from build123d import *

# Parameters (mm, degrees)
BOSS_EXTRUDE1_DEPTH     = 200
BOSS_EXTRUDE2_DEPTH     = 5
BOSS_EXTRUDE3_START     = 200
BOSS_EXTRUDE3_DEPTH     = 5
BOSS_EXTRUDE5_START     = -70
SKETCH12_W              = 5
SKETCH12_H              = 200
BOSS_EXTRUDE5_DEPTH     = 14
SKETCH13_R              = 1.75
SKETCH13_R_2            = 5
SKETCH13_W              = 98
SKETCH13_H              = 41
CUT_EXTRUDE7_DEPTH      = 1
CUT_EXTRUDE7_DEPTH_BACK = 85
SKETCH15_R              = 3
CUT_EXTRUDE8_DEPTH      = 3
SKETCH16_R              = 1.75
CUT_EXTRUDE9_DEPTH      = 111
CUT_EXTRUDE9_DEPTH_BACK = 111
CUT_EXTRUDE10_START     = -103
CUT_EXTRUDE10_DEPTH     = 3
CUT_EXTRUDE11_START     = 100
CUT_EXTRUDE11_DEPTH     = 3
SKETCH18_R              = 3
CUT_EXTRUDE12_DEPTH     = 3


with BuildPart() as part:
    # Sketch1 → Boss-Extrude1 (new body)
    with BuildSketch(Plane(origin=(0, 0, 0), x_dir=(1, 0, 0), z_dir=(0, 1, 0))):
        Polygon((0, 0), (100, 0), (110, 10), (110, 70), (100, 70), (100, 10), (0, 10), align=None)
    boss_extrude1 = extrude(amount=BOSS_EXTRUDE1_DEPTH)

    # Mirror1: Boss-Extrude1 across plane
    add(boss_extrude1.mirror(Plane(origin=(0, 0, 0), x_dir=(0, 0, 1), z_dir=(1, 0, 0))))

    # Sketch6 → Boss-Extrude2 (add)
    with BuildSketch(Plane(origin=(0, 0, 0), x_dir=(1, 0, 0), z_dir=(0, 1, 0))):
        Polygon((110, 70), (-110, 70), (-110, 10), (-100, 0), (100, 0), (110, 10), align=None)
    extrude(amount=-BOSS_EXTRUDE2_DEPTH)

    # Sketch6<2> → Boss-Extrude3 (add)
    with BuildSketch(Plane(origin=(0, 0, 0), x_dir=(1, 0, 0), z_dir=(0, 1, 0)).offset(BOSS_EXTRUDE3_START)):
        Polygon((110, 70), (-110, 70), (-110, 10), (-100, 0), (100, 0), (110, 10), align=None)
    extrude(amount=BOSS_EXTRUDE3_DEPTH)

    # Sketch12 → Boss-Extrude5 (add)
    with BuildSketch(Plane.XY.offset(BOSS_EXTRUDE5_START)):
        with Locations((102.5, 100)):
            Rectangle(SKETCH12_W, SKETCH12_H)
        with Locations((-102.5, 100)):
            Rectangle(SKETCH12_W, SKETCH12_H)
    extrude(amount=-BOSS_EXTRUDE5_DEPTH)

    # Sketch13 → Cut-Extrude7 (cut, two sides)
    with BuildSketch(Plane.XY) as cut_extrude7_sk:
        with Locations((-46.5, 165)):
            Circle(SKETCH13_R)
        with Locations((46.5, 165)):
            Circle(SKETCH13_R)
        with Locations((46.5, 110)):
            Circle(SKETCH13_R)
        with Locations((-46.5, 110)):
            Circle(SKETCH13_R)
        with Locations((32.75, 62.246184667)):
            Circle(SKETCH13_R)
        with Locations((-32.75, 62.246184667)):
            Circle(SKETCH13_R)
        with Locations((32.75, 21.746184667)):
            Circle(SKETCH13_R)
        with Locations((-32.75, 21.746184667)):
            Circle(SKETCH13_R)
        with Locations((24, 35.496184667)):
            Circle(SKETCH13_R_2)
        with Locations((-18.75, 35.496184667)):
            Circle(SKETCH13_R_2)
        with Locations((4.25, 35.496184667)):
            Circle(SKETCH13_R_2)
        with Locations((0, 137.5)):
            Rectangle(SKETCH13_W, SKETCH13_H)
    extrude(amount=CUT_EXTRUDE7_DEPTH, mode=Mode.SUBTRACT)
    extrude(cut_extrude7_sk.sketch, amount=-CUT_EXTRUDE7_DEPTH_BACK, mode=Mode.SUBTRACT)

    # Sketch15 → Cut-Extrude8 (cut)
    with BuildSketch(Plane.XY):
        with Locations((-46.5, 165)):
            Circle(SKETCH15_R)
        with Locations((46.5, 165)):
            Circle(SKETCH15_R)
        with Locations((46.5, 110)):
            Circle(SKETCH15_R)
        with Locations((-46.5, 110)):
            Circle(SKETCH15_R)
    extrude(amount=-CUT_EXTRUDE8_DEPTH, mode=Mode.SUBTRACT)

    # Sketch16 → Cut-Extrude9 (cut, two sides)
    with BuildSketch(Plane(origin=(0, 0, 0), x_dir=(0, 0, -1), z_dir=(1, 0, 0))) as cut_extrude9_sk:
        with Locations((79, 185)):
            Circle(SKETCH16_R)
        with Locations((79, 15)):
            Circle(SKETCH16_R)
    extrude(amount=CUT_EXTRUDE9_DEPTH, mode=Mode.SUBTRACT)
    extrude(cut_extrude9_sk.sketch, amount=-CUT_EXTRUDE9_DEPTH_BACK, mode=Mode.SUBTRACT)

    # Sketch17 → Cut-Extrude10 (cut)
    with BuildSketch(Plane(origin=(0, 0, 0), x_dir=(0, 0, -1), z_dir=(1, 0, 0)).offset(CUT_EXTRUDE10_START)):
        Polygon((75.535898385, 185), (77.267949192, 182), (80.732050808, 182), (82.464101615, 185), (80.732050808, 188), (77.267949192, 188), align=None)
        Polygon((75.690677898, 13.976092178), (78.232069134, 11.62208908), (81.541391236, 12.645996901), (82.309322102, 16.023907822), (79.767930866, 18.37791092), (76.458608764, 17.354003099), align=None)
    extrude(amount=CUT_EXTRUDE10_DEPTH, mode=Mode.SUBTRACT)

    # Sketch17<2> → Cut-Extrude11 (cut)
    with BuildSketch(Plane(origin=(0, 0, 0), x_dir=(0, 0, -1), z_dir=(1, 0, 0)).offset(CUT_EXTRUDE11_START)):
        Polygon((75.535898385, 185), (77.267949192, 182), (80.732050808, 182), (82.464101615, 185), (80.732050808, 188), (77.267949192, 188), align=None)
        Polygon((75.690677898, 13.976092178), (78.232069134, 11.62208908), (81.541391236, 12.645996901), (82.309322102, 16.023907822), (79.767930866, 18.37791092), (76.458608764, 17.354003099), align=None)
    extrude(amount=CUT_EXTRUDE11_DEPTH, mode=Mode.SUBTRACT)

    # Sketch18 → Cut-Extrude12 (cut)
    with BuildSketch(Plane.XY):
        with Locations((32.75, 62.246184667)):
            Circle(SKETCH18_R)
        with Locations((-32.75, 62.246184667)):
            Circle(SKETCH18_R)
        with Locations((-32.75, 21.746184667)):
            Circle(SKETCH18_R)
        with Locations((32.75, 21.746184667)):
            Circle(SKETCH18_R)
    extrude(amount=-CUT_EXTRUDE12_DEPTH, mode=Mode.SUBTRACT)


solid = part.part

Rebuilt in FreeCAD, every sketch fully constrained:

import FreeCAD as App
import Part
import Sketcher

V = App.Vector
Q = App.Units.Quantity

doc = App.newDocument("Part")
body = doc.addObject("PartDesign::Body", "Body")

# Sketch on XZ plane
sketch1 = body.newObject("Sketcher::SketchObject", "Sketch")
sketch1.AttachmentSupport = (doc.getObject("XZ_Plane"), [""])
sketch1.MapMode = "FlatFace"
sketch1.addGeometry([
    Part.LineSegment(V(0, 0, 0), V(100, 0, 0)),  # 0
    Part.LineSegment(V(100, 0, 0), V(110, -10, 0)),  # 1
    Part.LineSegment(V(110, -10, 0), V(110, -70, 0)),  # 2
    Part.LineSegment(V(110, -70, 0), V(100, -70, 0)),  # 3
    Part.LineSegment(V(100, -70, 0), V(100, -10, 0)),  # 4
    Part.LineSegment(V(100, -10, 0), V(0, -10, 0)),  # 5
    Part.LineSegment(V(0, -10, 0), V(0, 0, 0)),  # 6
], False)
sketch1.addConstraint([
    Sketcher.Constraint("Coincident", 0, 2, 1, 1),
    Sketcher.Constraint("Coincident", 1, 2, 2, 1),
    Sketcher.Constraint("Coincident", 2, 2, 3, 1),
    Sketcher.Constraint("Coincident", 3, 2, 4, 1),
    Sketcher.Constraint("Coincident", 4, 2, 5, 1),
    Sketcher.Constraint("Coincident", 5, 2, 6, 1),
    Sketcher.Constraint("Coincident", 6, 2, 0, 1),
    Sketcher.Constraint("Horizontal", 0),
    Sketcher.Constraint("Vertical", 2),
    Sketcher.Constraint("Horizontal", 3),
    Sketcher.Constraint("Vertical", 4),
    Sketcher.Constraint("Horizontal", 5),
    Sketcher.Constraint("Vertical", 6),
    Sketcher.Constraint("Coincident", 6, 2, -1, 1),
    Sketcher.Constraint("Horizontal", 1, 2, 4, 2),
    Sketcher.Constraint("Vertical", 0, 2, 3, 2),
    Sketcher.Constraint("Equal", 3, 6),
    Sketcher.Constraint("DistanceX", 0, 1, 0, 2, Q("100 mm")),
    Sketcher.Constraint("DistanceX", 3, 2, 3, 1, Q("10 mm")),
    Sketcher.Constraint("DistanceY", 2, 2, 2, 1, Q("60 mm")),
])
pad1 = body.newObject("PartDesign::Pad", "Pad")
pad1.Profile = sketch1
pad1.Length = 200
pad1.Reversed = True
doc.recompute()

mirrored = body.newObject("PartDesign::Mirrored", "Mirrored")
mirrored.Originals = [pad1]
mirrored.MirrorPlane = (doc.getObject("YZ_Plane"), [""])
body.Tip = mirrored

# Sketch on XZ plane
sketch2 = body.newObject("Sketcher::SketchObject", "Sketch001")
sketch2.AttachmentSupport = (doc.getObject("XZ_Plane"), [""])
sketch2.MapMode = "FlatFace"
sketch2.addGeometry([
    Part.LineSegment(V(110, -70, 0), V(-110, -70, 0)),  # 0
    Part.LineSegment(V(-110, -70, 0), V(-110, -10, 0)),  # 1
    Part.LineSegment(V(-110, -10, 0), V(-100, 0, 0)),  # 2
    Part.LineSegment(V(-100, 0, 0), V(100, 0, 0)),  # 3
    Part.LineSegment(V(100, 0, 0), V(110, -10, 0)),  # 4
    Part.LineSegment(V(110, -10, 0), V(110, -70, 0)),  # 5
], False)
sketch2.addConstraint([
    Sketcher.Constraint("Coincident", 0, 2, 1, 1),
    Sketcher.Constraint("Coincident", 1, 2, 2, 1),
    Sketcher.Constraint("Coincident", 2, 2, 3, 1),
    Sketcher.Constraint("Coincident", 3, 2, 4, 1),
    Sketcher.Constraint("Coincident", 4, 2, 5, 1),
    Sketcher.Constraint("Coincident", 5, 2, 0, 1),
    Sketcher.Constraint("Horizontal", 0),
    Sketcher.Constraint("Vertical", 1),
    Sketcher.Constraint("Horizontal", 3),
    Sketcher.Constraint("Vertical", 5),
    Sketcher.Constraint("Symmetric", 2, 2, 3, 2, -1, 1),
    Sketcher.Constraint("Symmetric", 1, 2, 4, 2, -2),
    Sketcher.Constraint("Perpendicular", 2, 4),
    Sketcher.Constraint("DistanceX", 0, 2, 0, 1, Q("220 mm")),
    Sketcher.Constraint("DistanceX", 3, 1, 3, 2, Q("200 mm")),
    Sketcher.Constraint("DistanceY", 1, 1, 1, 2, Q("60 mm")),
])
pad2 = body.newObject("PartDesign::Pad", "Pad001")
pad2.Profile = sketch2
pad2.Length = 5

# Sketch on XZ plane
sketch3 = body.newObject("Sketcher::SketchObject", "Sketch002")
sketch3.AttachmentSupport = (doc.getObject("XZ_Plane"), [""])
sketch3.MapMode = "FlatFace"
sketch3.AttachmentOffset = App.Placement(V(0, 0, -200), App.Rotation())
sketch3.addGeometry([
    Part.LineSegment(V(110, -70, 0), V(-110, -70, 0)),  # 0
    Part.LineSegment(V(-110, -70, 0), V(-110, -10, 0)),  # 1
    Part.LineSegment(V(-110, -10, 0), V(-100, 0, 0)),  # 2
    Part.LineSegment(V(-100, 0, 0), V(100, 0, 0)),  # 3
    Part.LineSegment(V(100, 0, 0), V(110, -10, 0)),  # 4
    Part.LineSegment(V(110, -10, 0), V(110, -70, 0)),  # 5
], False)
sketch3.addConstraint([
    Sketcher.Constraint("Coincident", 0, 2, 1, 1),
    Sketcher.Constraint("Coincident", 1, 2, 2, 1),
    Sketcher.Constraint("Coincident", 2, 2, 3, 1),
    Sketcher.Constraint("Coincident", 3, 2, 4, 1),
    Sketcher.Constraint("Coincident", 4, 2, 5, 1),
    Sketcher.Constraint("Coincident", 5, 2, 0, 1),
    Sketcher.Constraint("Horizontal", 0),
    Sketcher.Constraint("Vertical", 1),
    Sketcher.Constraint("Horizontal", 3),
    Sketcher.Constraint("Vertical", 5),
    Sketcher.Constraint("Symmetric", 2, 2, 3, 2, -1, 1),
    Sketcher.Constraint("Symmetric", 1, 2, 4, 2, -2),
    Sketcher.Constraint("Perpendicular", 2, 4),
    Sketcher.Constraint("DistanceX", 0, 2, 0, 1, Q("220 mm")),
    Sketcher.Constraint("DistanceX", 3, 1, 3, 2, Q("200 mm")),
    Sketcher.Constraint("DistanceY", 1, 1, 1, 2, Q("60 mm")),
])
pad3 = body.newObject("PartDesign::Pad", "Pad002")
pad3.Profile = sketch3
pad3.Length = 5
pad3.Reversed = True

# Sketch on XY plane
sketch4 = body.newObject("Sketcher::SketchObject", "Sketch003")
sketch4.AttachmentSupport = (doc.getObject("XY_Plane"), [""])
sketch4.MapMode = "FlatFace"
sketch4.AttachmentOffset = App.Placement(V(0, 0, -70), App.Rotation())
sketch4.addGeometry([
    Part.LineSegment(V(100, 200, 0), V(100, 0, 0)),  # 0
    Part.LineSegment(V(100, 0, 0), V(105, 0, 0)),  # 1
    Part.LineSegment(V(105, 0, 0), V(105, 200, 0)),  # 2
    Part.LineSegment(V(105, 200, 0), V(100, 200, 0)),  # 3
    Part.LineSegment(V(-105, 200, 0), V(-105, 0, 0)),  # 4
    Part.LineSegment(V(-105, 0, 0), V(-100, 0, 0)),  # 5
    Part.LineSegment(V(-100, 0, 0), V(-100, 200, 0)),  # 6
    Part.LineSegment(V(-100, 200, 0), V(-105, 200, 0)),  # 7
], False)
sketch4.addConstraint([
    Sketcher.Constraint("Coincident", 0, 2, 1, 1),
    Sketcher.Constraint("Coincident", 1, 2, 2, 1),
    Sketcher.Constraint("Coincident", 2, 2, 3, 1),
    Sketcher.Constraint("Coincident", 3, 2, 0, 1),
    Sketcher.Constraint("Coincident", 4, 2, 5, 1),
    Sketcher.Constraint("Coincident", 5, 2, 6, 1),
    Sketcher.Constraint("Coincident", 6, 2, 7, 1),
    Sketcher.Constraint("Coincident", 7, 2, 4, 1),
    Sketcher.Constraint("Vertical", 0),
    Sketcher.Constraint("Horizontal", 1),
    Sketcher.Constraint("Vertical", 2),
    Sketcher.Constraint("Horizontal", 3),
    Sketcher.Constraint("Vertical", 4),
    Sketcher.Constraint("Horizontal", 5),
    Sketcher.Constraint("Vertical", 6),
    Sketcher.Constraint("Horizontal", 7),
    Sketcher.Constraint("Symmetric", 1, 2, 4, 2, -1, 1),
    Sketcher.Constraint("Symmetric", 0, 2, 5, 2, -2),
    Sketcher.Constraint("Horizontal", 3, 2, 6, 2),
    Sketcher.Constraint("DistanceX", 1, 1, 1, 2, Q("5 mm")),
    Sketcher.Constraint("DistanceY", 0, 2, 0, 1, Q("200 mm")),
    Sketcher.Constraint("DistanceX", -1, 1, 0, 2, Q("100 mm")),
])
pad4 = body.newObject("PartDesign::Pad", "Pad003")
pad4.Profile = sketch4
pad4.Length = 14
pad4.Reversed = True

# Sketch on XY plane
sketch5 = body.newObject("Sketcher::SketchObject", "Sketch004")
sketch5.AttachmentSupport = (doc.getObject("XY_Plane"), [""])
sketch5.MapMode = "FlatFace"
sketch5.addGeometry([
    Part.Circle(V(-46.5, 165, 0), V(0, 0, 1), 1.8),  # 0
    Part.Circle(V(46.5, 165, 0), V(0, 0, 1), 1.8),  # 1
    Part.Circle(V(46.5, 110, 0), V(0, 0, 1), 1.8),  # 2
    Part.Circle(V(-46.5, 110, 0), V(0, 0, 1), 1.8),  # 3
    Part.Circle(V(32.8, 62.2, 0), V(0, 0, 1), 1.8),  # 4
    Part.Circle(V(-32.8, 62.2, 0), V(0, 0, 1), 1.8),  # 5
    Part.Circle(V(32.8, 21.7, 0), V(0, 0, 1), 1.8),  # 6
    Part.Circle(V(-32.8, 21.7, 0), V(0, 0, 1), 1.8),  # 7
    Part.Circle(V(24, 35.5, 0), V(0, 0, 1), 5),  # 8
    Part.Circle(V(-18.8, 35.5, 0), V(0, 0, 1), 5),  # 9
    Part.Circle(V(4.2, 35.5, 0), V(0, 0, 1), 5),  # 10
    Part.LineSegment(V(-49, 158, 0), V(-49, 117, 0)),  # 11
    Part.LineSegment(V(-49, 117, 0), V(49, 117, 0)),  # 12
    Part.LineSegment(V(49, 117, 0), V(49, 158, 0)),  # 13
    Part.LineSegment(V(49, 158, 0), V(-49, 158, 0)),  # 14
], False)
sketch5.addConstraint([
    Sketcher.Constraint("Coincident", 11, 2, 12, 1),
    Sketcher.Constraint("Coincident", 12, 2, 13, 1),
    Sketcher.Constraint("Coincident", 13, 2, 14, 1),
    Sketcher.Constraint("Coincident", 14, 2, 11, 1),
    Sketcher.Constraint("Vertical", 11),
    Sketcher.Constraint("Horizontal", 12),
    Sketcher.Constraint("Vertical", 13),
    Sketcher.Constraint("Horizontal", 14),
    Sketcher.Constraint("Equal", 0, 1),
    Sketcher.Constraint("Equal", 1, 2),
    Sketcher.Constraint("Equal", 2, 3),
    Sketcher.Constraint("Equal", 3, 4),
    Sketcher.Constraint("Equal", 4, 5),
    Sketcher.Constraint("Equal", 5, 6),
    Sketcher.Constraint("Equal", 6, 7),
    Sketcher.Constraint("Equal", 8, 9),
    Sketcher.Constraint("Equal", 9, 10),
    Sketcher.Constraint("Symmetric", 0, 3, 1, 3, -2),
    Sketcher.Constraint("Symmetric", 2, 3, 3, 3, -2),
    Sketcher.Constraint("Symmetric", 4, 3, 5, 3, -2),
    Sketcher.Constraint("Symmetric", 6, 3, 7, 3, -2),
    Sketcher.Constraint("Horizontal", 8, 3, 9, 3),
    Sketcher.Constraint("Horizontal", 9, 3, 10, 3),
    Sketcher.Constraint("Vertical", 1, 3, 2, 3),
    Sketcher.Constraint("Vertical", 4, 3, 6, 3),
    Sketcher.Constraint("Diameter", 8, Q("10 mm")),
    Sketcher.Constraint("Diameter", 0, Q("3.5 mm")),
    Sketcher.Constraint("DistanceX", 12, 1, 12, 2, Q("98 mm")),
    Sketcher.Constraint("DistanceY", 11, 2, 11, 1, Q("41 mm")),
    Sketcher.Constraint("DistanceY", -1, 1, 0, 3, Q("165 mm")),
    Sketcher.Constraint("DistanceY", -1, 1, 2, 3, Q("110 mm")),
    Sketcher.Constraint("DistanceX", -1, 1, 8, 3, Q("24 mm")),
    Sketcher.Constraint("DistanceX", 11, 2, -1, 1, Q("49 mm")),
    Sketcher.Constraint("DistanceY", -1, 1, 11, 2, Q("117 mm")),
    Sketcher.Constraint("DistanceX", 0, 3, 1, 3, Q("93 mm")),
    Sketcher.Constraint("DistanceX", 7, 3, 9, 3, Q("14 mm")),
    Sketcher.Constraint("DistanceX", 9, 3, 10, 3, Q("23 mm")),
    Sketcher.Constraint("DistanceX", 5, 3, 4, 3, Q("65.5 mm")),
    Sketcher.Constraint("DistanceY", 6, 3, 4, 3, Q("40.5 mm")),
    Sketcher.Constraint("DistanceY", 6, 3, 8, 3, Q("13.75 mm")),
    Sketcher.Constraint("DistanceY", -1, 1, 4, 3, Q("62.246185 mm")),
])
pocket1 = body.newObject("PartDesign::Pocket", "Pocket")
pocket1.Profile = sketch5
pocket1.Type = "ThroughAll"
pocket1.Midplane = True

# Sketch on XY plane
sketch6 = body.newObject("Sketcher::SketchObject", "Sketch005")
sketch6.AttachmentSupport = (doc.getObject("XY_Plane"), [""])
sketch6.MapMode = "FlatFace"
sketch6.addGeometry([
    Part.Circle(V(-46.5, 165, 0), V(0, 0, 1), 3),
    Part.Circle(V(46.5, 165, 0), V(0, 0, 1), 3),
    Part.Circle(V(46.5, 110, 0), V(0, 0, 1), 3),
    Part.Circle(V(-46.5, 110, 0), V(0, 0, 1), 3),
], False)
sketch6.addConstraint([
    Sketcher.Constraint("Equal", 0, 1),
    Sketcher.Constraint("Equal", 1, 2),
    Sketcher.Constraint("Equal", 2, 3),
    Sketcher.Constraint("Symmetric", 0, 3, 1, 3, -2),
    Sketcher.Constraint("Symmetric", 2, 3, 3, 3, -2),
    Sketcher.Constraint("Vertical", 1, 3, 2, 3),
    Sketcher.Constraint("Diameter", 0, Q("6 mm")),
    Sketcher.Constraint("DistanceY", -1, 1, 0, 3, Q("165 mm")),
    Sketcher.Constraint("DistanceY", -1, 1, 2, 3, Q("110 mm")),
    Sketcher.Constraint("DistanceX", 0, 3, 1, 3, Q("93 mm")),
])
pocket2 = body.newObject("PartDesign::Pocket", "Pocket001")
pocket2.Profile = sketch6
pocket2.Length = 3

# Sketch on YZ plane
sketch7 = body.newObject("Sketcher::SketchObject", "Sketch006")
sketch7.AttachmentSupport = (doc.getObject("YZ_Plane"), [""])
sketch7.MapMode = "FlatFace"
sketch7.addGeometry([
    Part.Circle(V(185, -79, 0), V(0, 0, 1), 1.8),
    Part.Circle(V(15, -79, 0), V(0, 0, 1), 1.8),
], False)
sketch7.addConstraint([
    Sketcher.Constraint("Equal", 0, 1),
    Sketcher.Constraint("Horizontal", 0, 3, 1, 3),
    Sketcher.Constraint("Diameter", 0, Q("3.5 mm")),
    Sketcher.Constraint("DistanceX", -1, 1, 0, 3, Q("185 mm")),
    Sketcher.Constraint("DistanceY", 0, 3, -1, 1, Q("79 mm")),
    Sketcher.Constraint("DistanceX", -1, 1, 1, 3, Q("15 mm")),
])
pocket3 = body.newObject("PartDesign::Pocket", "Pocket002")
pocket3.Profile = sketch7
pocket3.Type = "ThroughAll"
pocket3.Midplane = True

# Sketch on YZ plane
sketch8 = body.newObject("Sketcher::SketchObject", "Sketch007")
sketch8.AttachmentSupport = (doc.getObject("YZ_Plane"), [""])
sketch8.MapMode = "FlatFace"
sketch8.AttachmentOffset = App.Placement(V(0, 0, -103), App.Rotation())
sketch8.addGeometry([
    Part.LineSegment(V(185, -75.5, 0), V(182, -77.3, 0)),  # 0
    Part.LineSegment(V(182, -77.3, 0), V(182, -80.7, 0)),  # 1
    Part.LineSegment(V(182, -80.7, 0), V(185, -82.5, 0)),  # 2
    Part.LineSegment(V(185, -82.5, 0), V(188, -80.7, 0)),  # 3
    Part.LineSegment(V(188, -80.7, 0), V(188, -77.3, 0)),  # 4
    Part.LineSegment(V(188, -77.3, 0), V(185, -75.5, 0)),  # 5
    Part.LineSegment(V(14, -75.7, 0), V(11.6, -78.2, 0)),  # 6
    Part.LineSegment(V(11.6, -78.2, 0), V(12.6, -81.5, 0)),  # 7
    Part.LineSegment(V(12.6, -81.5, 0), V(16, -82.3, 0)),  # 8
    Part.LineSegment(V(16, -82.3, 0), V(18.4, -79.8, 0)),  # 9
    Part.LineSegment(V(18.4, -79.8, 0), V(17.4, -76.5, 0)),  # 10
    Part.LineSegment(V(17.4, -76.5, 0), V(14, -75.7, 0)),  # 11
], False)
sketch8.addConstraint([
    Sketcher.Constraint("Coincident", 0, 2, 1, 1),
    Sketcher.Constraint("Coincident", 1, 2, 2, 1),
    Sketcher.Constraint("Coincident", 2, 2, 3, 1),
    Sketcher.Constraint("Coincident", 3, 2, 4, 1),
    Sketcher.Constraint("Coincident", 4, 2, 5, 1),
    Sketcher.Constraint("Coincident", 5, 2, 0, 1),
    Sketcher.Constraint("Coincident", 6, 2, 7, 1),
    Sketcher.Constraint("Coincident", 7, 2, 8, 1),
    Sketcher.Constraint("Coincident", 8, 2, 9, 1),
    Sketcher.Constraint("Coincident", 9, 2, 10, 1),
    Sketcher.Constraint("Coincident", 10, 2, 11, 1),
    Sketcher.Constraint("Coincident", 11, 2, 6, 1),
    Sketcher.Constraint("Vertical", 1),
    Sketcher.Constraint("Vertical", 4),
    Sketcher.Constraint("Parallel", 0, 3),
    Sketcher.Constraint("Parallel", 2, 5),
    Sketcher.Constraint("Parallel", 6, 9),
    Sketcher.Constraint("Parallel", 7, 10),
    Sketcher.Constraint("Parallel", 8, 11),
    Sketcher.Constraint("Horizontal", 1, 2, 3, 2),
    Sketcher.Constraint("Horizontal", 0, 2, 4, 2),
    Sketcher.Constraint("Vertical", 2, 2, 5, 2),
    Sketcher.Constraint("Equal", 5, 6),
    Sketcher.Constraint("Equal", 6, 7),
    Sketcher.Constraint("Equal", 7, 8),
    Sketcher.Constraint("Equal", 8, 9),
    Sketcher.Constraint("Angle", 0, Q("-150 deg")),
    Sketcher.Constraint("DistanceX", -1, 1, 0, 2, Q("182 mm")),
    Sketcher.Constraint("DistanceX", -1, 1, 2, 2, Q("185 mm")),
    Sketcher.Constraint("DistanceY", 1, 2, 1, 1, Q("3.464102 mm")),
    Sketcher.Constraint("DistanceY", 2, 2, -1, 1, Q("82.464102 mm")),
    Sketcher.Constraint("DistanceX", -1, 1, 6, 2, Q("11.622089 mm")),
    Sketcher.Constraint("DistanceY", 6, 2, -1, 1, Q("78.232069 mm")),
    Sketcher.Constraint("DistanceY", 7, 2, -1, 1, Q("81.541391 mm")),
    Sketcher.Constraint("DistanceX", -1, 1, 9, 2, Q("18.377911 mm")),
    Sketcher.Constraint("DistanceY", 9, 2, -1, 1, Q("79.767931 mm")),
])
pocket4 = body.newObject("PartDesign::Pocket", "Pocket003")
pocket4.Profile = sketch8
pocket4.Length = 3
pocket4.Reversed = True

# Sketch on YZ plane
sketch9 = body.newObject("Sketcher::SketchObject", "Sketch008")
sketch9.AttachmentSupport = (doc.getObject("YZ_Plane"), [""])
sketch9.MapMode = "FlatFace"
sketch9.AttachmentOffset = App.Placement(V(0, 0, 100), App.Rotation())
sketch9.addGeometry([
    Part.LineSegment(V(185, -75.5, 0), V(182, -77.3, 0)),  # 0
    Part.LineSegment(V(182, -77.3, 0), V(182, -80.7, 0)),  # 1
    Part.LineSegment(V(182, -80.7, 0), V(185, -82.5, 0)),  # 2
    Part.LineSegment(V(185, -82.5, 0), V(188, -80.7, 0)),  # 3
    Part.LineSegment(V(188, -80.7, 0), V(188, -77.3, 0)),  # 4
    Part.LineSegment(V(188, -77.3, 0), V(185, -75.5, 0)),  # 5
    Part.LineSegment(V(14, -75.7, 0), V(11.6, -78.2, 0)),  # 6
    Part.LineSegment(V(11.6, -78.2, 0), V(12.6, -81.5, 0)),  # 7
    Part.LineSegment(V(12.6, -81.5, 0), V(16, -82.3, 0)),  # 8
    Part.LineSegment(V(16, -82.3, 0), V(18.4, -79.8, 0)),  # 9
    Part.LineSegment(V(18.4, -79.8, 0), V(17.4, -76.5, 0)),  # 10
    Part.LineSegment(V(17.4, -76.5, 0), V(14, -75.7, 0)),  # 11
], False)
sketch9.addConstraint([
    Sketcher.Constraint("Coincident", 0, 2, 1, 1),
    Sketcher.Constraint("Coincident", 1, 2, 2, 1),
    Sketcher.Constraint("Coincident", 2, 2, 3, 1),
    Sketcher.Constraint("Coincident", 3, 2, 4, 1),
    Sketcher.Constraint("Coincident", 4, 2, 5, 1),
    Sketcher.Constraint("Coincident", 5, 2, 0, 1),
    Sketcher.Constraint("Coincident", 6, 2, 7, 1),
    Sketcher.Constraint("Coincident", 7, 2, 8, 1),
    Sketcher.Constraint("Coincident", 8, 2, 9, 1),
    Sketcher.Constraint("Coincident", 9, 2, 10, 1),
    Sketcher.Constraint("Coincident", 10, 2, 11, 1),
    Sketcher.Constraint("Coincident", 11, 2, 6, 1),
    Sketcher.Constraint("Vertical", 1),
    Sketcher.Constraint("Vertical", 4),
    Sketcher.Constraint("Parallel", 0, 3),
    Sketcher.Constraint("Parallel", 2, 5),
    Sketcher.Constraint("Parallel", 6, 9),
    Sketcher.Constraint("Parallel", 7, 10),
    Sketcher.Constraint("Parallel", 8, 11),
    Sketcher.Constraint("Horizontal", 1, 2, 3, 2),
    Sketcher.Constraint("Horizontal", 0, 2, 4, 2),
    Sketcher.Constraint("Vertical", 2, 2, 5, 2),
    Sketcher.Constraint("Equal", 5, 6),
    Sketcher.Constraint("Equal", 6, 7),
    Sketcher.Constraint("Equal", 7, 8),
    Sketcher.Constraint("Equal", 8, 9),
    Sketcher.Constraint("Angle", 0, Q("-150 deg")),
    Sketcher.Constraint("DistanceX", -1, 1, 0, 2, Q("182 mm")),
    Sketcher.Constraint("DistanceX", -1, 1, 2, 2, Q("185 mm")),
    Sketcher.Constraint("DistanceY", 1, 2, 1, 1, Q("3.464102 mm")),
    Sketcher.Constraint("DistanceY", 2, 2, -1, 1, Q("82.464102 mm")),
    Sketcher.Constraint("DistanceX", -1, 1, 6, 2, Q("11.622089 mm")),
    Sketcher.Constraint("DistanceY", 6, 2, -1, 1, Q("78.232069 mm")),
    Sketcher.Constraint("DistanceY", 7, 2, -1, 1, Q("81.541391 mm")),
    Sketcher.Constraint("DistanceX", -1, 1, 9, 2, Q("18.377911 mm")),
    Sketcher.Constraint("DistanceY", 9, 2, -1, 1, Q("79.767931 mm")),
])
pocket5 = body.newObject("PartDesign::Pocket", "Pocket004")
pocket5.Profile = sketch9
pocket5.Length = 3
pocket5.Reversed = True

# Sketch on XY plane
sketch10 = body.newObject("Sketcher::SketchObject", "Sketch009")
sketch10.AttachmentSupport = (doc.getObject("XY_Plane"), [""])
sketch10.MapMode = "FlatFace"
sketch10.addGeometry([
    Part.Circle(V(32.8, 62.2, 0), V(0, 0, 1), 3),
    Part.Circle(V(-32.8, 62.2, 0), V(0, 0, 1), 3),
    Part.Circle(V(-32.8, 21.7, 0), V(0, 0, 1), 3),
    Part.Circle(V(32.8, 21.7, 0), V(0, 0, 1), 3),
], False)
sketch10.addConstraint([
    Sketcher.Constraint("Equal", 0, 1),
    Sketcher.Constraint("Equal", 1, 2),
    Sketcher.Constraint("Equal", 2, 3),
    Sketcher.Constraint("Symmetric", 0, 3, 1, 3, -2),
    Sketcher.Constraint("Symmetric", 2, 3, 3, 3, -2),
    Sketcher.Constraint("Vertical", 1, 3, 2, 3),
    Sketcher.Constraint("Diameter", 0, Q("6 mm")),
    Sketcher.Constraint("DistanceX", 1, 3, 0, 3, Q("65.5 mm")),
    Sketcher.Constraint("DistanceY", 2, 3, 1, 3, Q("40.5 mm")),
    Sketcher.Constraint("DistanceY", -1, 1, 0, 3, Q("62.246185 mm")),
])
pocket6 = body.newObject("PartDesign::Pocket", "Pocket005")
pocket6.Profile = sketch10
pocket6.Length = 3

doc.recompute()
